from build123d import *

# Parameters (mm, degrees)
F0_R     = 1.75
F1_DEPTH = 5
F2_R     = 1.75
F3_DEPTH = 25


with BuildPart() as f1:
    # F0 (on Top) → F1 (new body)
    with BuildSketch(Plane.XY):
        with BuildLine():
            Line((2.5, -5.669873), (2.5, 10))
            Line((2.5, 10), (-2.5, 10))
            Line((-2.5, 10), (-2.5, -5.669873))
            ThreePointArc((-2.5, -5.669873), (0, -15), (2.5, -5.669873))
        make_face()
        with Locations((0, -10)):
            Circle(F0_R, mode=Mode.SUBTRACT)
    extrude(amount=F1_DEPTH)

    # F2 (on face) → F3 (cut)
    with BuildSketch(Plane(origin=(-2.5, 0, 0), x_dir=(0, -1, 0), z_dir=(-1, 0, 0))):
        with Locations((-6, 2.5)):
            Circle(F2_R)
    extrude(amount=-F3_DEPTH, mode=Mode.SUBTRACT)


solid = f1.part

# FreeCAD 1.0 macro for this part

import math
import FreeCAD as App
import Part
import Sketcher

V = App.Vector
Q = App.Units.Quantity

doc = App.newDocument("Part")
params = doc.addObject("Spreadsheet::Sheet", "Params")
for row, (alias, value) in enumerate([
    ("sketch1_radius", "5 mm"),
    ("sketch1_diameter", "3.5 mm"),
    ("sketch1_width", "5 mm"),
    ("pad1_length", "5 mm"),
    ("sketch2_diameter", "3.5 mm"),
    ("pocket1_length", "25 mm"),
], start=1):
    params.set(f"A{row}", alias)
    params.set(f"B{row}", "=" + value)
    params.setAlias(f"B{row}", alias)

body = doc.addObject("PartDesign::Body", "Body")

# Sketch on XY plane
sketch1 = doc.addObject("Sketcher::SketchObject", "Sketch")
body.addObject(sketch1)
sketch1.AttachmentSupport = (doc.XY_Plane, [""])
sketch1.MapMode = "FlatFace"
sketch1.addGeometry([
    Part.LineSegment(V(2.5, -5.669873, 0), V(2.5, 10, 0)),  # 0
    Part.LineSegment(V(2.5, 10, 0), V(-2.5, 10, 0)),  # 1
    Part.LineSegment(V(-2.5, 10, 0), V(-2.5, -5.669873, 0)),  # 2
    Part.ArcOfCircle(Part.Circle(V(0, -10, 0), V(0, 0, 1), 5), math.radians(120), math.radians(420)),  # 3
    Part.Circle(V(0, -10, 0), V(0, 0, 1), 1.75),  # 4
], False)
sketch1.addConstraint([
    Sketcher.Constraint("Coincident", 0, 2, 1, 1),
    Sketcher.Constraint("Coincident", 1, 2, 2, 1),
    Sketcher.Constraint("Coincident", 2, 2, 3, 1),
    Sketcher.Constraint("Coincident", 3, 2, 0, 1),
    Sketcher.Constraint("Vertical", 0),
    Sketcher.Constraint("Horizontal", 1),
    Sketcher.Constraint("Vertical", 2),
    Sketcher.Constraint("Coincident", 4, 3, 3, 3),
    Sketcher.Constraint("Symmetric", 2, 2, 3, 2, -2),
    Sketcher.Constraint("Radius", 3, Q("5 mm")),
    Sketcher.Constraint("Diameter", 4, Q("3.5 mm")),
    Sketcher.Constraint("DistanceX", 1, 2, 1, 1, Q("5 mm")),
    Sketcher.Constraint("DistanceY", 3, 3, -1, 1, Q("10 mm")),
    Sketcher.Constraint("DistanceY", -1, 1, 0, 2, Q("10 mm")),
])
sketch1.setExpression("Constraints[9]", "Params.sketch1_radius")
sketch1.setExpression("Constraints[10]", "Params.sketch1_diameter")
sketch1.setExpression("Constraints[11]", "Params.sketch1_width")
pad1 = doc.addObject("PartDesign::Pad", "Pad")
body.addObject(pad1)
pad1.Profile = sketch1
pad1.setExpression("Length", "Params.pad1_length")

# Sketch on YZ plane
sketch2 = doc.addObject("Sketcher::SketchObject", "Sketch001")
body.addObject(sketch2)
sketch2.AttachmentSupport = (doc.YZ_Plane, [""])
sketch2.MapMode = "FlatFace"
sketch2.AttachmentOffset = App.Placement(V(0, 0, -2.5), App.Rotation())
sketch2.addGeometry(Part.Circle(V(6, 2.5, 0), V(0, 0, 1), 1.75), False)
sketch2.addConstraint([
    Sketcher.Constraint("Diameter", 0, Q("3.5 mm")),
    Sketcher.Constraint("DistanceX", -1, 1, 0, 3, Q("6 mm")),
    Sketcher.Constraint("DistanceY", -1, 1, 0, 3, Q("2.5 mm")),
])
sketch2.setExpression("Constraints[0]", "Params.sketch2_diameter")
pocket1 = doc.addObject("PartDesign::Pocket", "Pocket")
body.addObject(pocket1)
pocket1.Profile = sketch2
pocket1.setExpression("Length", "Params.pocket1_length")
pocket1.Reversed = True

doc.recompute()
